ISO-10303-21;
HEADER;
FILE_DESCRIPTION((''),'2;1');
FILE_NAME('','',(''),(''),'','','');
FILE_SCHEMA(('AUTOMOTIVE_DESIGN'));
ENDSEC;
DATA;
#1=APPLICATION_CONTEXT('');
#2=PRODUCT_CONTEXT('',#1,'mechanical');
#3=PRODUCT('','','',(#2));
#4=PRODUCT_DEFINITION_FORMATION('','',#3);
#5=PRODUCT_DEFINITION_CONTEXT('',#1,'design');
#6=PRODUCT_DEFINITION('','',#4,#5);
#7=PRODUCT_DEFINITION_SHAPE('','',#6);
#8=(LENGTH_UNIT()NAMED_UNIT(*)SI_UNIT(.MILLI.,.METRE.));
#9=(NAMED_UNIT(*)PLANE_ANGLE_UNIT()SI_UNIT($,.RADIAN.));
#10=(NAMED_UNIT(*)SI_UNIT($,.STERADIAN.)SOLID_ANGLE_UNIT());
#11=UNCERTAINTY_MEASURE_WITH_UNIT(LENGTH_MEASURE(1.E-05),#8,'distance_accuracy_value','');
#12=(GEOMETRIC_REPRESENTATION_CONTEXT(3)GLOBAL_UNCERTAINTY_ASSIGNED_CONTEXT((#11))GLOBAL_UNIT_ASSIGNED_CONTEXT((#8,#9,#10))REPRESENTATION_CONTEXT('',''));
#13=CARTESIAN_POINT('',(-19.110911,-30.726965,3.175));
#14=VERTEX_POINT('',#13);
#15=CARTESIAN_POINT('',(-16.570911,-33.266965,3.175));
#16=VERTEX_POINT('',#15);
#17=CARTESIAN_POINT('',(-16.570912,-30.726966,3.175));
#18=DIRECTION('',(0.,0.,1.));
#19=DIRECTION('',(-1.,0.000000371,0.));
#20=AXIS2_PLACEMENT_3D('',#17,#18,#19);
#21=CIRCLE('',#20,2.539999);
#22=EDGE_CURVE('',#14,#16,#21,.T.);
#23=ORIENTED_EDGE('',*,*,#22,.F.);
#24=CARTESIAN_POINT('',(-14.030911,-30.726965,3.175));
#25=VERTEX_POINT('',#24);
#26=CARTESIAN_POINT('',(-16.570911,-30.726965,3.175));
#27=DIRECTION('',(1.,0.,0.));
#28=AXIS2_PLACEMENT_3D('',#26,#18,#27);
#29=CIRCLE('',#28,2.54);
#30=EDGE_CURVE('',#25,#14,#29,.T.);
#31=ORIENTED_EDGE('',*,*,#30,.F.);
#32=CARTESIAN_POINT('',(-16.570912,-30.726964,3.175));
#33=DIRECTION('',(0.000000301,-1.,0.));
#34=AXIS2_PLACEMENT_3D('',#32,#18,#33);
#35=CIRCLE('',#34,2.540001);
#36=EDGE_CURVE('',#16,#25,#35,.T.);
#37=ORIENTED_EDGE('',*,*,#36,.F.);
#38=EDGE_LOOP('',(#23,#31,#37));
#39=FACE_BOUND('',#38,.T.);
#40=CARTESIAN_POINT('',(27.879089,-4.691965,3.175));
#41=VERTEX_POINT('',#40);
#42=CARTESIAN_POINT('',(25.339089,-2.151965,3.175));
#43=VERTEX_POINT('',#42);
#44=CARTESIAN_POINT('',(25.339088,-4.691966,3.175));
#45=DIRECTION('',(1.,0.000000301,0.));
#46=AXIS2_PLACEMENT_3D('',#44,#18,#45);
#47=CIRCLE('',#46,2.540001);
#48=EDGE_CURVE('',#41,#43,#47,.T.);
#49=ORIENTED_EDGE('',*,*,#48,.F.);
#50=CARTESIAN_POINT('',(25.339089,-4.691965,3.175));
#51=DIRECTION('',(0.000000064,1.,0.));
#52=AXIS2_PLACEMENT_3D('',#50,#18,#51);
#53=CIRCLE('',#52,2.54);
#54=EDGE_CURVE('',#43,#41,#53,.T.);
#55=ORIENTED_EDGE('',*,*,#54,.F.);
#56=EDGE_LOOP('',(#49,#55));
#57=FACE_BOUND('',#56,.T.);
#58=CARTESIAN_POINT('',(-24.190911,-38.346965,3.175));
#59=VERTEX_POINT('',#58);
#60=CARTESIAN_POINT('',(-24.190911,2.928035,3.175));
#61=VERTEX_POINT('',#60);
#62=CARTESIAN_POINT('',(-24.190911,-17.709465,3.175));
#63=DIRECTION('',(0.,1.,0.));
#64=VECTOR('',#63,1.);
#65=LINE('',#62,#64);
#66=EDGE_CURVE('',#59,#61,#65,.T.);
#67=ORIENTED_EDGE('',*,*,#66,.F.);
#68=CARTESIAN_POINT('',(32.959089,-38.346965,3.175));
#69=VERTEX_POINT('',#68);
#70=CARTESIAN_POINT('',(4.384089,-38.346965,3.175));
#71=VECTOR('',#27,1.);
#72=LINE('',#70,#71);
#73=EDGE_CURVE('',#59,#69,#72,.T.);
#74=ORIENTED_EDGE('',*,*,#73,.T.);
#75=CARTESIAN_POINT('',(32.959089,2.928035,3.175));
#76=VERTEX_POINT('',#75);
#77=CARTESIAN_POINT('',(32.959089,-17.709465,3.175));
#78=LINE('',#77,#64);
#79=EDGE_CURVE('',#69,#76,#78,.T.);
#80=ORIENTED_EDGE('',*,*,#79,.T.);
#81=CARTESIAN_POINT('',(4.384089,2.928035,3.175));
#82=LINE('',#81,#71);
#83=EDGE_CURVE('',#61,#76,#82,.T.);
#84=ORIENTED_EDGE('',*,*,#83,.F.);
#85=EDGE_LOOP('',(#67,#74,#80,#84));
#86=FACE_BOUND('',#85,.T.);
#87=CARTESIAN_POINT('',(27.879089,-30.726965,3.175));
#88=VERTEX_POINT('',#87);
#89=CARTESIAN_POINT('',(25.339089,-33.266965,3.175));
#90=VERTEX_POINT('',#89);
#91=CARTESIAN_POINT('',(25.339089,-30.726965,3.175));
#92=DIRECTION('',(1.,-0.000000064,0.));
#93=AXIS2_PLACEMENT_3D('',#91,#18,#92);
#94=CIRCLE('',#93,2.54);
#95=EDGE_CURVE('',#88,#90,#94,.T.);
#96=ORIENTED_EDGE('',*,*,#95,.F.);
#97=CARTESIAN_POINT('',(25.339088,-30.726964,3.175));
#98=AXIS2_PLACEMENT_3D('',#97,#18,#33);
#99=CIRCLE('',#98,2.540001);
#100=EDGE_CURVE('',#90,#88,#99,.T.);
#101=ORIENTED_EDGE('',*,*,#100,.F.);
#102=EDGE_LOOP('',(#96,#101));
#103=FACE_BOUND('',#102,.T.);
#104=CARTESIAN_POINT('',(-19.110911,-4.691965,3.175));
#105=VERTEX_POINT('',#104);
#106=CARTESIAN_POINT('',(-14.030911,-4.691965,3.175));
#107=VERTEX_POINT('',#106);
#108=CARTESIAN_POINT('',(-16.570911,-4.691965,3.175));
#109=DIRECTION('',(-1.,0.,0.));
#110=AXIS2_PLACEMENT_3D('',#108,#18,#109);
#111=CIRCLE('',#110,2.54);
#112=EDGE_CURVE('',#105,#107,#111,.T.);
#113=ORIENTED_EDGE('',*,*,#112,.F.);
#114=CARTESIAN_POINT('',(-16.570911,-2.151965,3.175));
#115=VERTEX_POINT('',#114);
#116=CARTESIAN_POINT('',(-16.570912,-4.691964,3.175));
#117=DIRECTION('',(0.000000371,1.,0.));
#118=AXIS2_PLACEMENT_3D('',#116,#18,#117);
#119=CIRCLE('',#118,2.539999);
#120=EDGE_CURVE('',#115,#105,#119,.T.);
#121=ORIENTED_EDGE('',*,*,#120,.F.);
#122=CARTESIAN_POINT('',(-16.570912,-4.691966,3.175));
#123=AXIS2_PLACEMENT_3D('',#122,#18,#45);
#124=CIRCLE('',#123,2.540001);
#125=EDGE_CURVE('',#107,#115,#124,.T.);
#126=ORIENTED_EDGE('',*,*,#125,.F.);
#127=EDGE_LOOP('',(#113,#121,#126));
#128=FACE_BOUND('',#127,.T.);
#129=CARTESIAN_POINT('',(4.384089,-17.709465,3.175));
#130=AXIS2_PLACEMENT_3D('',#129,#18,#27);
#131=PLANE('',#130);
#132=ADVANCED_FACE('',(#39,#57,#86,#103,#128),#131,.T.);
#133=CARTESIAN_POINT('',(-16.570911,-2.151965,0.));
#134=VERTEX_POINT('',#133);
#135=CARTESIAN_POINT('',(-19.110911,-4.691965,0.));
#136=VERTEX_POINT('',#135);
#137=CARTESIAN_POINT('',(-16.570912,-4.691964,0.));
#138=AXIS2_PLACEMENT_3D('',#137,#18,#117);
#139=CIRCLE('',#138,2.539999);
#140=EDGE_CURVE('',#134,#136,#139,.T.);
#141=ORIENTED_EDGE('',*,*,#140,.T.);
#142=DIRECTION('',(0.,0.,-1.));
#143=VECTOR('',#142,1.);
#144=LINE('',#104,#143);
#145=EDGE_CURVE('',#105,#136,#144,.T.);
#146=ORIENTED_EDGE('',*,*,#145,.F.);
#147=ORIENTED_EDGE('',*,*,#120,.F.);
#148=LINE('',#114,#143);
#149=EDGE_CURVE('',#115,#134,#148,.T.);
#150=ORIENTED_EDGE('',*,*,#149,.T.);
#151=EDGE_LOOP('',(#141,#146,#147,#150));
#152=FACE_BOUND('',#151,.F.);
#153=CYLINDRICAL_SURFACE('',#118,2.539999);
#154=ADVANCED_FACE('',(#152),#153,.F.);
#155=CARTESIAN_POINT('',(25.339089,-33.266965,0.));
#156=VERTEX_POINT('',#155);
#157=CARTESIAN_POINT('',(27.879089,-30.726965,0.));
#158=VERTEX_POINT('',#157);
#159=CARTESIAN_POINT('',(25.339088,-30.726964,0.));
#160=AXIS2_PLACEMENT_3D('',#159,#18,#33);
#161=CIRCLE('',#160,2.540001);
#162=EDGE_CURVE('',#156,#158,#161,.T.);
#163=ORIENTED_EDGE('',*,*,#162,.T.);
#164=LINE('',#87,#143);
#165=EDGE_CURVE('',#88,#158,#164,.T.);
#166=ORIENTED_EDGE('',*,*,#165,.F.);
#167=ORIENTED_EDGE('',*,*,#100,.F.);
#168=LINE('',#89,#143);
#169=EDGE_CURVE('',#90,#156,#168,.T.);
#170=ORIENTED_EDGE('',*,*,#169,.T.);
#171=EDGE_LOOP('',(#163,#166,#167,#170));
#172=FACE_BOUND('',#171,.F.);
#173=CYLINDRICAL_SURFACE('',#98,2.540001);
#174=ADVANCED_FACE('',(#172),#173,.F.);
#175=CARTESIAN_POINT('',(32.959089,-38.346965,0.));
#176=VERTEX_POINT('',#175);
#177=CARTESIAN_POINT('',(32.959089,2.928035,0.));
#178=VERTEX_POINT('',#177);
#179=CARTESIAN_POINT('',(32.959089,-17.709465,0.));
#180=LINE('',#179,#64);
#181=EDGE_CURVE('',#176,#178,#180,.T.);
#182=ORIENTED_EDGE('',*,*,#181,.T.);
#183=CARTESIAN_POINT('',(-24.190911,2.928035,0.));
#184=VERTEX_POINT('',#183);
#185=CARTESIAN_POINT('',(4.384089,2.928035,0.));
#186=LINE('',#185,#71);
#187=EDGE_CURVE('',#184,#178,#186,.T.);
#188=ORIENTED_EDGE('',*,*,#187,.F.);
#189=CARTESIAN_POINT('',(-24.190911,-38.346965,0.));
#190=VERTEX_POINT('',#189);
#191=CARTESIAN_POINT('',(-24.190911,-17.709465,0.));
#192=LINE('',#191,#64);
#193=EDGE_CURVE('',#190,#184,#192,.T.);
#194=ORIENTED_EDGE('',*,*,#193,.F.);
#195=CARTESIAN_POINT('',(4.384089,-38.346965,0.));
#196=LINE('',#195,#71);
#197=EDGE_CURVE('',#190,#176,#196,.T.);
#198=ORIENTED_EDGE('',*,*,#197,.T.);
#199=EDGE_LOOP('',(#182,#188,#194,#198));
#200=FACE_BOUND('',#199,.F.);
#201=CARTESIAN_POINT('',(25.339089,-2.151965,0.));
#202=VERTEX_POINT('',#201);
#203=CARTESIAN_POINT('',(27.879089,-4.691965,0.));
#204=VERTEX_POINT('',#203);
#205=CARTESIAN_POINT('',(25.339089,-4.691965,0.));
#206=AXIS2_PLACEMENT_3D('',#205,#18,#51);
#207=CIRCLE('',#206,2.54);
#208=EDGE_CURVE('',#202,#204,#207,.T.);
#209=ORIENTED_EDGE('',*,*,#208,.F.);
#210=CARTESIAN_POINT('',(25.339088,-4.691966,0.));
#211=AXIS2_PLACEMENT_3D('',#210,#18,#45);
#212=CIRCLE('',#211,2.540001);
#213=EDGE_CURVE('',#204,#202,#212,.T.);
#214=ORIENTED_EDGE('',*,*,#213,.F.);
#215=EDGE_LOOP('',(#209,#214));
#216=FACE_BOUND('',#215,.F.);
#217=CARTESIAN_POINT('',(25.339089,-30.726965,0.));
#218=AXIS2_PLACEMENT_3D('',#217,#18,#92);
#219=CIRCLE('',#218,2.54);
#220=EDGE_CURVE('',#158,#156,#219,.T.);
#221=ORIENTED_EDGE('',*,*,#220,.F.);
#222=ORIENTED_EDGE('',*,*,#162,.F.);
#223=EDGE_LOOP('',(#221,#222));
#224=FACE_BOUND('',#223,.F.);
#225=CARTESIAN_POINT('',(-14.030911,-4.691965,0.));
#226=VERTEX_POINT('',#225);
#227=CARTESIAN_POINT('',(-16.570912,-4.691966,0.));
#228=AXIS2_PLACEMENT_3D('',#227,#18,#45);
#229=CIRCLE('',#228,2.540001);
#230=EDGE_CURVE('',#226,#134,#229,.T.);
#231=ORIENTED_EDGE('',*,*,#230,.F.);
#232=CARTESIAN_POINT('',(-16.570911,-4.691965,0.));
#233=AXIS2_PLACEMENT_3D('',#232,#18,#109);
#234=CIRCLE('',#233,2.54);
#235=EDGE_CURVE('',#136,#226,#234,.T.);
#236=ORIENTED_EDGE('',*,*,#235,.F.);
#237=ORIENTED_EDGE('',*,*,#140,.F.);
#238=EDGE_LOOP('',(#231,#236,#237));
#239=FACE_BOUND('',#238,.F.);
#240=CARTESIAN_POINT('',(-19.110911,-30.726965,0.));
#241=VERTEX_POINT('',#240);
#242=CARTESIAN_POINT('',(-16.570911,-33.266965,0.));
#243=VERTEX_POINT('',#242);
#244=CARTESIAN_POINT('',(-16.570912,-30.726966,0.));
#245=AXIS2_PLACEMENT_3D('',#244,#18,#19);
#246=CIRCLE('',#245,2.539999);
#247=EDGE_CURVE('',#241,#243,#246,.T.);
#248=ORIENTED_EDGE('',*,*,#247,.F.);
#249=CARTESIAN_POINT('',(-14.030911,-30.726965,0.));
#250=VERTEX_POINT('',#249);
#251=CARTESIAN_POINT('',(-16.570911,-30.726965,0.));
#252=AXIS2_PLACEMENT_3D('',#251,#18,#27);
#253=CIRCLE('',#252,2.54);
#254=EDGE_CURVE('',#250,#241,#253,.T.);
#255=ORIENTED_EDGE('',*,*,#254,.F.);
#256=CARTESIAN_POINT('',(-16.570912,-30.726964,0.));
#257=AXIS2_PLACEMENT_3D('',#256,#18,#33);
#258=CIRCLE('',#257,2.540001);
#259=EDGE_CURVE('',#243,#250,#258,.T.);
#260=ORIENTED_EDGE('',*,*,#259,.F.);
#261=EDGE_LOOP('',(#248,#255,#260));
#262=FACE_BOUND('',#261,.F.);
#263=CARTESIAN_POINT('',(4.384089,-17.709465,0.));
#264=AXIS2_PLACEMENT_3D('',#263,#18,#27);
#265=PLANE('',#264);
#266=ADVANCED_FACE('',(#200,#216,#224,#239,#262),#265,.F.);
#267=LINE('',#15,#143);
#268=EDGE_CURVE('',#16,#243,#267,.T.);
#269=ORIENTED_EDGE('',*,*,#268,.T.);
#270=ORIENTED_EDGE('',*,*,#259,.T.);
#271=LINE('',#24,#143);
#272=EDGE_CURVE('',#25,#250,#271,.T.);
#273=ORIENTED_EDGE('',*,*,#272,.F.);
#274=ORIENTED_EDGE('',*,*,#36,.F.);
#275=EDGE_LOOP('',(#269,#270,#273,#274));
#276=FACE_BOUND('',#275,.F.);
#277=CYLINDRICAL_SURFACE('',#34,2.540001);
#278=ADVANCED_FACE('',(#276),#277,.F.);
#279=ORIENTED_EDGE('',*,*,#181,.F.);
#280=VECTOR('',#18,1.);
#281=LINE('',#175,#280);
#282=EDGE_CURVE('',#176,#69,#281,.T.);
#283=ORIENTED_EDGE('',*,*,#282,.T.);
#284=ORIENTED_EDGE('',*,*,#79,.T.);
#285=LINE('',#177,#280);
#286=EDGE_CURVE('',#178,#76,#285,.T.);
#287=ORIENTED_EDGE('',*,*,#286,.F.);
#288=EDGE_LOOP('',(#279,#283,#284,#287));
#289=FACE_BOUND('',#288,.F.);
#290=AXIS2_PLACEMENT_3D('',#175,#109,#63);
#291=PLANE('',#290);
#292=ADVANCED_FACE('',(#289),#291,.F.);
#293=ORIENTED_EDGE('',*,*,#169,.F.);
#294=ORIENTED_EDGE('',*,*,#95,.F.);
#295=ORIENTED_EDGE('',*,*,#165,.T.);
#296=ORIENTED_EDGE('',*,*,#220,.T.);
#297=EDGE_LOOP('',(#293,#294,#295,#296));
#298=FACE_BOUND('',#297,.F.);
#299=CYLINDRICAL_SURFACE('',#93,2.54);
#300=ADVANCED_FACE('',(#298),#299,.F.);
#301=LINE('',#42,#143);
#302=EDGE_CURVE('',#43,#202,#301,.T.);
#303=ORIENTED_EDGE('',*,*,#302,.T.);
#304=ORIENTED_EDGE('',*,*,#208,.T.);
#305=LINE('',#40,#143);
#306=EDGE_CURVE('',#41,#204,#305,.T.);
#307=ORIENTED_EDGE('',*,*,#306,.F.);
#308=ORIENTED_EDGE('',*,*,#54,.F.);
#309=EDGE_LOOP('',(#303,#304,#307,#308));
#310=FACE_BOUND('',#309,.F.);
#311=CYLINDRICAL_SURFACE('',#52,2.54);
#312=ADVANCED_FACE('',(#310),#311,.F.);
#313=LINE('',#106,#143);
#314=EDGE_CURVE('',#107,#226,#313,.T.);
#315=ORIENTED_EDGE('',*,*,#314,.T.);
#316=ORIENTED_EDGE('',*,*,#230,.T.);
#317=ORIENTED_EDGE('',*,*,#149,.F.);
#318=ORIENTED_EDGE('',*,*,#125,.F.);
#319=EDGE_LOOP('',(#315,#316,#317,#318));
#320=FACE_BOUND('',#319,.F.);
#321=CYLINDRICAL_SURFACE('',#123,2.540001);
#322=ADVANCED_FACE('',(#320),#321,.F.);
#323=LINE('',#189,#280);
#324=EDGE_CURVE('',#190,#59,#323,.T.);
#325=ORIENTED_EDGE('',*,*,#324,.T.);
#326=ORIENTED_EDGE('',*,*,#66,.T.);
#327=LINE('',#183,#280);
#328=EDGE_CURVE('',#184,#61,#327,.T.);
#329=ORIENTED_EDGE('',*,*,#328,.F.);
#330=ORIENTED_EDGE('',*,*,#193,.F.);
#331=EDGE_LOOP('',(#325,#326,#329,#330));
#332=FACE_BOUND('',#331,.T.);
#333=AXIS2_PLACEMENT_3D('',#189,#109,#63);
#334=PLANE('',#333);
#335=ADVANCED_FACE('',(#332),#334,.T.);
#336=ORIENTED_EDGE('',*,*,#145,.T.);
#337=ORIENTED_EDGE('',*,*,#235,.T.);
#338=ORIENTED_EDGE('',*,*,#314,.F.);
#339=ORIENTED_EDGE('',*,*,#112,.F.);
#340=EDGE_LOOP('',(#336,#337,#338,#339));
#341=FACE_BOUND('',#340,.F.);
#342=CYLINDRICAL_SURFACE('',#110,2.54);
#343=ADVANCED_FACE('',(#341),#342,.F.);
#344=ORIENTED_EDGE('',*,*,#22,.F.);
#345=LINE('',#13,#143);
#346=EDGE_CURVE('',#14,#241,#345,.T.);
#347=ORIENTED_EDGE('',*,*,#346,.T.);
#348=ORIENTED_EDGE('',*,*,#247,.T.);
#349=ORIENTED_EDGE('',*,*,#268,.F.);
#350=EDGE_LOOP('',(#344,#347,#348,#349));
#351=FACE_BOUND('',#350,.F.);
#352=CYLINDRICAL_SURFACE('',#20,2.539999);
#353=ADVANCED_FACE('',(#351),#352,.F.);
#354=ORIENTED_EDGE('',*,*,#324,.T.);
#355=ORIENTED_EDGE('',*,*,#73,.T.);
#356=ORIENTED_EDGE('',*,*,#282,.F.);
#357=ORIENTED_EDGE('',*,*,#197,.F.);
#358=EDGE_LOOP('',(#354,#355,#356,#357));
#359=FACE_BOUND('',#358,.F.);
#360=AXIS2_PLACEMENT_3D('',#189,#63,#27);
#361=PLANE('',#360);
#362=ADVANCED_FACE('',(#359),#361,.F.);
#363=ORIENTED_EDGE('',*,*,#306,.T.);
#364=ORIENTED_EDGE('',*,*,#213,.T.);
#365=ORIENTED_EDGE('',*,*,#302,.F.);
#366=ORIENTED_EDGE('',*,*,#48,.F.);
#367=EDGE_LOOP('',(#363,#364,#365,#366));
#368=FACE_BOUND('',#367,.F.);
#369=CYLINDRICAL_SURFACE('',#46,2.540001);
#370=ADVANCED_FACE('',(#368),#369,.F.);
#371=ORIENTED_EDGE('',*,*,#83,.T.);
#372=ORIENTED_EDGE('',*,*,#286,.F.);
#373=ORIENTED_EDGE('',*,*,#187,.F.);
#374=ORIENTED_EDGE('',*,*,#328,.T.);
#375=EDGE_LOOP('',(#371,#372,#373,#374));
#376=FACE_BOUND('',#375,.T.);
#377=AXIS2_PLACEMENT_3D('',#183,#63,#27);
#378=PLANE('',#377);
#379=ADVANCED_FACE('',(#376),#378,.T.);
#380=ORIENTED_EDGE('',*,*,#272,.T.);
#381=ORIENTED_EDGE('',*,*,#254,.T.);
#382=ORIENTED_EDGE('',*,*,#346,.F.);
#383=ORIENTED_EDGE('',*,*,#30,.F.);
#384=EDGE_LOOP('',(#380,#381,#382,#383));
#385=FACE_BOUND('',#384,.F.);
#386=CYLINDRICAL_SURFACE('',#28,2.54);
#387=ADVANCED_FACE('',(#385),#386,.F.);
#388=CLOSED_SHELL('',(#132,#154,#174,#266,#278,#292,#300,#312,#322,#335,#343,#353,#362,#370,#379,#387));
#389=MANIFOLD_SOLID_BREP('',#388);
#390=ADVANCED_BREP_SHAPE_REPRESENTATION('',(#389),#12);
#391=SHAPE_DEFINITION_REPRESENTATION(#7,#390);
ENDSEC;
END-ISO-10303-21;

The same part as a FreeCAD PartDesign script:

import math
import FreeCAD as App
import Part
import Sketcher
Q = App.Units.Quantity


def add_polygon(sketch, points):
    """Adds a closed chain of lines whose ends are joined by coincident constraints."""
    first, n = sketch.GeometryCount, len(points)
    for a, b in zip(points, points[1:] + points[:1]):
        sketch.addGeometry(Part.LineSegment(App.Vector(*a, 0), App.Vector(*b, 0)), False)
    for i in range(n):
        sketch.addConstraint(Sketcher.Constraint("Coincident", first + i, 2, first + (i + 1) % n, 1))

doc = App.newDocument("Part")
params = doc.addObject("Spreadsheet::Sheet", "Params")
for row, (alias, value) in enumerate([
    ("sketch1_width", "2.25 in"),
    ("sketch1_height", "1.625 in"),
    ("pad1_length", "0.125 in"),
    ("sketch2_radius", "0.1 in"),
    ("pocket1_length", "0.25 in"),
], start=1):
    params.set(f"A{row}", alias)
    params.set(f"B{row}", "=" + value)
    params.setAlias(f"B{row}", alias)

body = doc.addObject("PartDesign::Body", "Body")

# Sketch on XY plane
sketch1 = body.newObject("Sketcher::SketchObject", "Sketch")
sketch1.AttachmentSupport = (doc.getObject("XY_Plane"), [""])
sketch1.MapMode = "FlatFace"
add_polygon(sketch1, [(-24.190911, 2.928035), (-24.190911, -38.346965), (32.959089, -38.346965), (32.959089, 2.928035)])  # lines 0-3
sketch1.addConstraint([
    Sketcher.Constraint("Vertical", 0),
    Sketcher.Constraint("Horizontal", 1),
    Sketcher.Constraint("Vertical", 2),
    Sketcher.Constraint("Horizontal", 3),
    Sketcher.Constraint("DistanceX", 1, 1, 1, 2, Q("2.25 in")),
    Sketcher.Constraint("DistanceY", 0, 2, 0, 1, Q("1.625 in")),
    Sketcher.Constraint("DistanceX", 0, 2, -1, 1, 24.190911),
    Sketcher.Constraint("DistanceY", 0, 2, -1, 1, 38.346965),
])
sketch1.setExpression("Constraints[8]", "Params.sketch1_width")
sketch1.setExpression("Constraints[9]", "Params.sketch1_height")
pad1 = body.newObject("PartDesign::Pad", "Pad")
pad1.Profile = sketch1
pad1.setExpression("Length", "Params.pad1_length")

# Sketch on XY plane
sketch2 = body.newObject("Sketcher::SketchObject", "Sketch001")
sketch2.AttachmentSupport = (doc.getObject("XY_Plane"), [""])
sketch2.MapMode = "FlatFace"
sketch2.AttachmentOffset = App.Placement(App.Vector(0, 0, 0.125 * 25.4), App.Rotation())
sketch2.addGeometry([
    Part.ArcOfCircle(Part.Circle(App.Vector(-16.570912, -4.691964, 0), App.Vector(0, 0, 1), 2.539999), math.radians(89.999979), math.radians(180.000021)),  # 0
    Part.ArcOfCircle(Part.Circle(App.Vector(-16.570911, -4.691965, 0), App.Vector(0, 0, 1), 2.54), math.radians(180), math.radians(360)),  # 1
    Part.ArcOfCircle(Part.Circle(App.Vector(-16.570912, -4.691966, 0), App.Vector(0, 0, 1), 2.540001), math.radians(0.000017), math.radians(89.999983)),  # 2
    Part.ArcOfCircle(Part.Circle(App.Vector(25.339088, -4.691966, 0), App.Vector(0, 0, 1), 2.540001), math.radians(0.000017), math.radians(89.999983)),  # 3
    Part.ArcOfCircle(Part.Circle(App.Vector(25.339089, -4.691965, 0), App.Vector(0, 0, 1), 2.54), math.radians(89.999996), math.radians(360.000004)),  # 4
    Part.ArcOfCircle(Part.Circle(App.Vector(25.339089, -30.726965, 0), App.Vector(0, 0, 1), 2.54), math.radians(-0.000004), math.radians(270.000004)),  # 5
    Part.ArcOfCircle(Part.Circle(App.Vector(25.339088, -30.726964, 0), App.Vector(0, 0, 1), 2.540001), math.radians(-89.999983), math.radians(-0.000017)),  # 6
    Part.ArcOfCircle(Part.Circle(App.Vector(-16.570912, -30.726966, 0), App.Vector(0, 0, 1), 2.539999), math.radians(179.999979), math.radians(270.000021)),  # 7
    Part.ArcOfCircle(Part.Circle(App.Vector(-16.570912, -30.726964, 0), App.Vector(0, 0, 1), 2.540001), math.radians(-89.999983), math.radians(-0.000017)),  # 8
    Part.ArcOfCircle(Part.Circle(App.Vector(-16.570911, -30.726965, 0), App.Vector(0, 0, 1), 2.54), math.radians(0), math.radians(180)),  # 9
], False)
sketch2.addConstraint([
    Sketcher.Constraint("Tangent", 0, 2, 1, 1),
    Sketcher.Constraint("Tangent", 1, 2, 2, 1),
    Sketcher.Constraint("Tangent", 2, 2, 0, 1),
    Sketcher.Constraint("Tangent", 3, 1, 4, 2),
    Sketcher.Constraint("Coincident", 4, 1, 3, 2),
    Sketcher.Constraint("Tangent", 5, 1, 6, 2),
    Sketcher.Constraint("Coincident", 6, 1, 5, 2),
    Sketcher.Constraint("Tangent", 7, 2, 8, 1),
    Sketcher.Constraint("Tangent", 8, 2, 9, 1),
    Sketcher.Constraint("Tangent", 9, 2, 7, 1),
    Sketcher.Constraint("Equal", 2, 3),
    Sketcher.Constraint("Equal", 4, 5),
    Sketcher.Constraint("Equal", 6, 7),
    Sketcher.Constraint("Horizontal", 2, 3, 3, 3),
    Sketcher.Constraint("Horizontal", 6, 3, 7, 3),
    Sketcher.Constraint("Horizontal", 4, 3, 0, 2),
    Sketcher.Constraint("Horizontal", 0, 2, 1, 2),
    Sketcher.Constraint("Horizontal", 1, 2, 3, 1),
    Sketcher.Constraint("Horizontal", 9, 3, 5, 1),
    Sketcher.Constraint("Horizontal", 5, 1, 8, 2),
    Sketcher.Constraint("Horizontal", 8, 2, 9, 2),
    Sketcher.Constraint("Vertical", 4, 3, 5, 3),
    Sketcher.Constraint("Vertical", 2, 3, 7, 3),
    Sketcher.Constraint("Vertical", 9, 3, 2, 2),
    Sketcher.Constraint("Vertical", 6, 3, 4, 1),
    Sketcher.Constraint("Vertical", 4, 1, 6, 1),
    Sketcher.Constraint("Vertical", 2, 2, 7, 2),
    Sketcher.Constraint("Radius", 0, Q("0.1 in")),
    Sketcher.Constraint("DistanceX", 1, 3, 3, 3, Q("1.65 in")),
    Sketcher.Constraint("DistanceY", 5, 3, 3, 3, Q("1.025 in")),
    Sketcher.Constraint("DistanceX", 0, 3, -1, 1, 16.570912),
    Sketcher.Constraint("DistanceY", 0, 3, -1, 1, 4.691964),
])
sketch2.setExpression("Constraints[27]", "Params.sketch2_radius")
pocket1 = body.newObject("PartDesign::Pocket", "Pocket")
pocket1.Profile = sketch2
pocket1.setExpression("Length", "Params.pocket1_length")

doc.recompute()
